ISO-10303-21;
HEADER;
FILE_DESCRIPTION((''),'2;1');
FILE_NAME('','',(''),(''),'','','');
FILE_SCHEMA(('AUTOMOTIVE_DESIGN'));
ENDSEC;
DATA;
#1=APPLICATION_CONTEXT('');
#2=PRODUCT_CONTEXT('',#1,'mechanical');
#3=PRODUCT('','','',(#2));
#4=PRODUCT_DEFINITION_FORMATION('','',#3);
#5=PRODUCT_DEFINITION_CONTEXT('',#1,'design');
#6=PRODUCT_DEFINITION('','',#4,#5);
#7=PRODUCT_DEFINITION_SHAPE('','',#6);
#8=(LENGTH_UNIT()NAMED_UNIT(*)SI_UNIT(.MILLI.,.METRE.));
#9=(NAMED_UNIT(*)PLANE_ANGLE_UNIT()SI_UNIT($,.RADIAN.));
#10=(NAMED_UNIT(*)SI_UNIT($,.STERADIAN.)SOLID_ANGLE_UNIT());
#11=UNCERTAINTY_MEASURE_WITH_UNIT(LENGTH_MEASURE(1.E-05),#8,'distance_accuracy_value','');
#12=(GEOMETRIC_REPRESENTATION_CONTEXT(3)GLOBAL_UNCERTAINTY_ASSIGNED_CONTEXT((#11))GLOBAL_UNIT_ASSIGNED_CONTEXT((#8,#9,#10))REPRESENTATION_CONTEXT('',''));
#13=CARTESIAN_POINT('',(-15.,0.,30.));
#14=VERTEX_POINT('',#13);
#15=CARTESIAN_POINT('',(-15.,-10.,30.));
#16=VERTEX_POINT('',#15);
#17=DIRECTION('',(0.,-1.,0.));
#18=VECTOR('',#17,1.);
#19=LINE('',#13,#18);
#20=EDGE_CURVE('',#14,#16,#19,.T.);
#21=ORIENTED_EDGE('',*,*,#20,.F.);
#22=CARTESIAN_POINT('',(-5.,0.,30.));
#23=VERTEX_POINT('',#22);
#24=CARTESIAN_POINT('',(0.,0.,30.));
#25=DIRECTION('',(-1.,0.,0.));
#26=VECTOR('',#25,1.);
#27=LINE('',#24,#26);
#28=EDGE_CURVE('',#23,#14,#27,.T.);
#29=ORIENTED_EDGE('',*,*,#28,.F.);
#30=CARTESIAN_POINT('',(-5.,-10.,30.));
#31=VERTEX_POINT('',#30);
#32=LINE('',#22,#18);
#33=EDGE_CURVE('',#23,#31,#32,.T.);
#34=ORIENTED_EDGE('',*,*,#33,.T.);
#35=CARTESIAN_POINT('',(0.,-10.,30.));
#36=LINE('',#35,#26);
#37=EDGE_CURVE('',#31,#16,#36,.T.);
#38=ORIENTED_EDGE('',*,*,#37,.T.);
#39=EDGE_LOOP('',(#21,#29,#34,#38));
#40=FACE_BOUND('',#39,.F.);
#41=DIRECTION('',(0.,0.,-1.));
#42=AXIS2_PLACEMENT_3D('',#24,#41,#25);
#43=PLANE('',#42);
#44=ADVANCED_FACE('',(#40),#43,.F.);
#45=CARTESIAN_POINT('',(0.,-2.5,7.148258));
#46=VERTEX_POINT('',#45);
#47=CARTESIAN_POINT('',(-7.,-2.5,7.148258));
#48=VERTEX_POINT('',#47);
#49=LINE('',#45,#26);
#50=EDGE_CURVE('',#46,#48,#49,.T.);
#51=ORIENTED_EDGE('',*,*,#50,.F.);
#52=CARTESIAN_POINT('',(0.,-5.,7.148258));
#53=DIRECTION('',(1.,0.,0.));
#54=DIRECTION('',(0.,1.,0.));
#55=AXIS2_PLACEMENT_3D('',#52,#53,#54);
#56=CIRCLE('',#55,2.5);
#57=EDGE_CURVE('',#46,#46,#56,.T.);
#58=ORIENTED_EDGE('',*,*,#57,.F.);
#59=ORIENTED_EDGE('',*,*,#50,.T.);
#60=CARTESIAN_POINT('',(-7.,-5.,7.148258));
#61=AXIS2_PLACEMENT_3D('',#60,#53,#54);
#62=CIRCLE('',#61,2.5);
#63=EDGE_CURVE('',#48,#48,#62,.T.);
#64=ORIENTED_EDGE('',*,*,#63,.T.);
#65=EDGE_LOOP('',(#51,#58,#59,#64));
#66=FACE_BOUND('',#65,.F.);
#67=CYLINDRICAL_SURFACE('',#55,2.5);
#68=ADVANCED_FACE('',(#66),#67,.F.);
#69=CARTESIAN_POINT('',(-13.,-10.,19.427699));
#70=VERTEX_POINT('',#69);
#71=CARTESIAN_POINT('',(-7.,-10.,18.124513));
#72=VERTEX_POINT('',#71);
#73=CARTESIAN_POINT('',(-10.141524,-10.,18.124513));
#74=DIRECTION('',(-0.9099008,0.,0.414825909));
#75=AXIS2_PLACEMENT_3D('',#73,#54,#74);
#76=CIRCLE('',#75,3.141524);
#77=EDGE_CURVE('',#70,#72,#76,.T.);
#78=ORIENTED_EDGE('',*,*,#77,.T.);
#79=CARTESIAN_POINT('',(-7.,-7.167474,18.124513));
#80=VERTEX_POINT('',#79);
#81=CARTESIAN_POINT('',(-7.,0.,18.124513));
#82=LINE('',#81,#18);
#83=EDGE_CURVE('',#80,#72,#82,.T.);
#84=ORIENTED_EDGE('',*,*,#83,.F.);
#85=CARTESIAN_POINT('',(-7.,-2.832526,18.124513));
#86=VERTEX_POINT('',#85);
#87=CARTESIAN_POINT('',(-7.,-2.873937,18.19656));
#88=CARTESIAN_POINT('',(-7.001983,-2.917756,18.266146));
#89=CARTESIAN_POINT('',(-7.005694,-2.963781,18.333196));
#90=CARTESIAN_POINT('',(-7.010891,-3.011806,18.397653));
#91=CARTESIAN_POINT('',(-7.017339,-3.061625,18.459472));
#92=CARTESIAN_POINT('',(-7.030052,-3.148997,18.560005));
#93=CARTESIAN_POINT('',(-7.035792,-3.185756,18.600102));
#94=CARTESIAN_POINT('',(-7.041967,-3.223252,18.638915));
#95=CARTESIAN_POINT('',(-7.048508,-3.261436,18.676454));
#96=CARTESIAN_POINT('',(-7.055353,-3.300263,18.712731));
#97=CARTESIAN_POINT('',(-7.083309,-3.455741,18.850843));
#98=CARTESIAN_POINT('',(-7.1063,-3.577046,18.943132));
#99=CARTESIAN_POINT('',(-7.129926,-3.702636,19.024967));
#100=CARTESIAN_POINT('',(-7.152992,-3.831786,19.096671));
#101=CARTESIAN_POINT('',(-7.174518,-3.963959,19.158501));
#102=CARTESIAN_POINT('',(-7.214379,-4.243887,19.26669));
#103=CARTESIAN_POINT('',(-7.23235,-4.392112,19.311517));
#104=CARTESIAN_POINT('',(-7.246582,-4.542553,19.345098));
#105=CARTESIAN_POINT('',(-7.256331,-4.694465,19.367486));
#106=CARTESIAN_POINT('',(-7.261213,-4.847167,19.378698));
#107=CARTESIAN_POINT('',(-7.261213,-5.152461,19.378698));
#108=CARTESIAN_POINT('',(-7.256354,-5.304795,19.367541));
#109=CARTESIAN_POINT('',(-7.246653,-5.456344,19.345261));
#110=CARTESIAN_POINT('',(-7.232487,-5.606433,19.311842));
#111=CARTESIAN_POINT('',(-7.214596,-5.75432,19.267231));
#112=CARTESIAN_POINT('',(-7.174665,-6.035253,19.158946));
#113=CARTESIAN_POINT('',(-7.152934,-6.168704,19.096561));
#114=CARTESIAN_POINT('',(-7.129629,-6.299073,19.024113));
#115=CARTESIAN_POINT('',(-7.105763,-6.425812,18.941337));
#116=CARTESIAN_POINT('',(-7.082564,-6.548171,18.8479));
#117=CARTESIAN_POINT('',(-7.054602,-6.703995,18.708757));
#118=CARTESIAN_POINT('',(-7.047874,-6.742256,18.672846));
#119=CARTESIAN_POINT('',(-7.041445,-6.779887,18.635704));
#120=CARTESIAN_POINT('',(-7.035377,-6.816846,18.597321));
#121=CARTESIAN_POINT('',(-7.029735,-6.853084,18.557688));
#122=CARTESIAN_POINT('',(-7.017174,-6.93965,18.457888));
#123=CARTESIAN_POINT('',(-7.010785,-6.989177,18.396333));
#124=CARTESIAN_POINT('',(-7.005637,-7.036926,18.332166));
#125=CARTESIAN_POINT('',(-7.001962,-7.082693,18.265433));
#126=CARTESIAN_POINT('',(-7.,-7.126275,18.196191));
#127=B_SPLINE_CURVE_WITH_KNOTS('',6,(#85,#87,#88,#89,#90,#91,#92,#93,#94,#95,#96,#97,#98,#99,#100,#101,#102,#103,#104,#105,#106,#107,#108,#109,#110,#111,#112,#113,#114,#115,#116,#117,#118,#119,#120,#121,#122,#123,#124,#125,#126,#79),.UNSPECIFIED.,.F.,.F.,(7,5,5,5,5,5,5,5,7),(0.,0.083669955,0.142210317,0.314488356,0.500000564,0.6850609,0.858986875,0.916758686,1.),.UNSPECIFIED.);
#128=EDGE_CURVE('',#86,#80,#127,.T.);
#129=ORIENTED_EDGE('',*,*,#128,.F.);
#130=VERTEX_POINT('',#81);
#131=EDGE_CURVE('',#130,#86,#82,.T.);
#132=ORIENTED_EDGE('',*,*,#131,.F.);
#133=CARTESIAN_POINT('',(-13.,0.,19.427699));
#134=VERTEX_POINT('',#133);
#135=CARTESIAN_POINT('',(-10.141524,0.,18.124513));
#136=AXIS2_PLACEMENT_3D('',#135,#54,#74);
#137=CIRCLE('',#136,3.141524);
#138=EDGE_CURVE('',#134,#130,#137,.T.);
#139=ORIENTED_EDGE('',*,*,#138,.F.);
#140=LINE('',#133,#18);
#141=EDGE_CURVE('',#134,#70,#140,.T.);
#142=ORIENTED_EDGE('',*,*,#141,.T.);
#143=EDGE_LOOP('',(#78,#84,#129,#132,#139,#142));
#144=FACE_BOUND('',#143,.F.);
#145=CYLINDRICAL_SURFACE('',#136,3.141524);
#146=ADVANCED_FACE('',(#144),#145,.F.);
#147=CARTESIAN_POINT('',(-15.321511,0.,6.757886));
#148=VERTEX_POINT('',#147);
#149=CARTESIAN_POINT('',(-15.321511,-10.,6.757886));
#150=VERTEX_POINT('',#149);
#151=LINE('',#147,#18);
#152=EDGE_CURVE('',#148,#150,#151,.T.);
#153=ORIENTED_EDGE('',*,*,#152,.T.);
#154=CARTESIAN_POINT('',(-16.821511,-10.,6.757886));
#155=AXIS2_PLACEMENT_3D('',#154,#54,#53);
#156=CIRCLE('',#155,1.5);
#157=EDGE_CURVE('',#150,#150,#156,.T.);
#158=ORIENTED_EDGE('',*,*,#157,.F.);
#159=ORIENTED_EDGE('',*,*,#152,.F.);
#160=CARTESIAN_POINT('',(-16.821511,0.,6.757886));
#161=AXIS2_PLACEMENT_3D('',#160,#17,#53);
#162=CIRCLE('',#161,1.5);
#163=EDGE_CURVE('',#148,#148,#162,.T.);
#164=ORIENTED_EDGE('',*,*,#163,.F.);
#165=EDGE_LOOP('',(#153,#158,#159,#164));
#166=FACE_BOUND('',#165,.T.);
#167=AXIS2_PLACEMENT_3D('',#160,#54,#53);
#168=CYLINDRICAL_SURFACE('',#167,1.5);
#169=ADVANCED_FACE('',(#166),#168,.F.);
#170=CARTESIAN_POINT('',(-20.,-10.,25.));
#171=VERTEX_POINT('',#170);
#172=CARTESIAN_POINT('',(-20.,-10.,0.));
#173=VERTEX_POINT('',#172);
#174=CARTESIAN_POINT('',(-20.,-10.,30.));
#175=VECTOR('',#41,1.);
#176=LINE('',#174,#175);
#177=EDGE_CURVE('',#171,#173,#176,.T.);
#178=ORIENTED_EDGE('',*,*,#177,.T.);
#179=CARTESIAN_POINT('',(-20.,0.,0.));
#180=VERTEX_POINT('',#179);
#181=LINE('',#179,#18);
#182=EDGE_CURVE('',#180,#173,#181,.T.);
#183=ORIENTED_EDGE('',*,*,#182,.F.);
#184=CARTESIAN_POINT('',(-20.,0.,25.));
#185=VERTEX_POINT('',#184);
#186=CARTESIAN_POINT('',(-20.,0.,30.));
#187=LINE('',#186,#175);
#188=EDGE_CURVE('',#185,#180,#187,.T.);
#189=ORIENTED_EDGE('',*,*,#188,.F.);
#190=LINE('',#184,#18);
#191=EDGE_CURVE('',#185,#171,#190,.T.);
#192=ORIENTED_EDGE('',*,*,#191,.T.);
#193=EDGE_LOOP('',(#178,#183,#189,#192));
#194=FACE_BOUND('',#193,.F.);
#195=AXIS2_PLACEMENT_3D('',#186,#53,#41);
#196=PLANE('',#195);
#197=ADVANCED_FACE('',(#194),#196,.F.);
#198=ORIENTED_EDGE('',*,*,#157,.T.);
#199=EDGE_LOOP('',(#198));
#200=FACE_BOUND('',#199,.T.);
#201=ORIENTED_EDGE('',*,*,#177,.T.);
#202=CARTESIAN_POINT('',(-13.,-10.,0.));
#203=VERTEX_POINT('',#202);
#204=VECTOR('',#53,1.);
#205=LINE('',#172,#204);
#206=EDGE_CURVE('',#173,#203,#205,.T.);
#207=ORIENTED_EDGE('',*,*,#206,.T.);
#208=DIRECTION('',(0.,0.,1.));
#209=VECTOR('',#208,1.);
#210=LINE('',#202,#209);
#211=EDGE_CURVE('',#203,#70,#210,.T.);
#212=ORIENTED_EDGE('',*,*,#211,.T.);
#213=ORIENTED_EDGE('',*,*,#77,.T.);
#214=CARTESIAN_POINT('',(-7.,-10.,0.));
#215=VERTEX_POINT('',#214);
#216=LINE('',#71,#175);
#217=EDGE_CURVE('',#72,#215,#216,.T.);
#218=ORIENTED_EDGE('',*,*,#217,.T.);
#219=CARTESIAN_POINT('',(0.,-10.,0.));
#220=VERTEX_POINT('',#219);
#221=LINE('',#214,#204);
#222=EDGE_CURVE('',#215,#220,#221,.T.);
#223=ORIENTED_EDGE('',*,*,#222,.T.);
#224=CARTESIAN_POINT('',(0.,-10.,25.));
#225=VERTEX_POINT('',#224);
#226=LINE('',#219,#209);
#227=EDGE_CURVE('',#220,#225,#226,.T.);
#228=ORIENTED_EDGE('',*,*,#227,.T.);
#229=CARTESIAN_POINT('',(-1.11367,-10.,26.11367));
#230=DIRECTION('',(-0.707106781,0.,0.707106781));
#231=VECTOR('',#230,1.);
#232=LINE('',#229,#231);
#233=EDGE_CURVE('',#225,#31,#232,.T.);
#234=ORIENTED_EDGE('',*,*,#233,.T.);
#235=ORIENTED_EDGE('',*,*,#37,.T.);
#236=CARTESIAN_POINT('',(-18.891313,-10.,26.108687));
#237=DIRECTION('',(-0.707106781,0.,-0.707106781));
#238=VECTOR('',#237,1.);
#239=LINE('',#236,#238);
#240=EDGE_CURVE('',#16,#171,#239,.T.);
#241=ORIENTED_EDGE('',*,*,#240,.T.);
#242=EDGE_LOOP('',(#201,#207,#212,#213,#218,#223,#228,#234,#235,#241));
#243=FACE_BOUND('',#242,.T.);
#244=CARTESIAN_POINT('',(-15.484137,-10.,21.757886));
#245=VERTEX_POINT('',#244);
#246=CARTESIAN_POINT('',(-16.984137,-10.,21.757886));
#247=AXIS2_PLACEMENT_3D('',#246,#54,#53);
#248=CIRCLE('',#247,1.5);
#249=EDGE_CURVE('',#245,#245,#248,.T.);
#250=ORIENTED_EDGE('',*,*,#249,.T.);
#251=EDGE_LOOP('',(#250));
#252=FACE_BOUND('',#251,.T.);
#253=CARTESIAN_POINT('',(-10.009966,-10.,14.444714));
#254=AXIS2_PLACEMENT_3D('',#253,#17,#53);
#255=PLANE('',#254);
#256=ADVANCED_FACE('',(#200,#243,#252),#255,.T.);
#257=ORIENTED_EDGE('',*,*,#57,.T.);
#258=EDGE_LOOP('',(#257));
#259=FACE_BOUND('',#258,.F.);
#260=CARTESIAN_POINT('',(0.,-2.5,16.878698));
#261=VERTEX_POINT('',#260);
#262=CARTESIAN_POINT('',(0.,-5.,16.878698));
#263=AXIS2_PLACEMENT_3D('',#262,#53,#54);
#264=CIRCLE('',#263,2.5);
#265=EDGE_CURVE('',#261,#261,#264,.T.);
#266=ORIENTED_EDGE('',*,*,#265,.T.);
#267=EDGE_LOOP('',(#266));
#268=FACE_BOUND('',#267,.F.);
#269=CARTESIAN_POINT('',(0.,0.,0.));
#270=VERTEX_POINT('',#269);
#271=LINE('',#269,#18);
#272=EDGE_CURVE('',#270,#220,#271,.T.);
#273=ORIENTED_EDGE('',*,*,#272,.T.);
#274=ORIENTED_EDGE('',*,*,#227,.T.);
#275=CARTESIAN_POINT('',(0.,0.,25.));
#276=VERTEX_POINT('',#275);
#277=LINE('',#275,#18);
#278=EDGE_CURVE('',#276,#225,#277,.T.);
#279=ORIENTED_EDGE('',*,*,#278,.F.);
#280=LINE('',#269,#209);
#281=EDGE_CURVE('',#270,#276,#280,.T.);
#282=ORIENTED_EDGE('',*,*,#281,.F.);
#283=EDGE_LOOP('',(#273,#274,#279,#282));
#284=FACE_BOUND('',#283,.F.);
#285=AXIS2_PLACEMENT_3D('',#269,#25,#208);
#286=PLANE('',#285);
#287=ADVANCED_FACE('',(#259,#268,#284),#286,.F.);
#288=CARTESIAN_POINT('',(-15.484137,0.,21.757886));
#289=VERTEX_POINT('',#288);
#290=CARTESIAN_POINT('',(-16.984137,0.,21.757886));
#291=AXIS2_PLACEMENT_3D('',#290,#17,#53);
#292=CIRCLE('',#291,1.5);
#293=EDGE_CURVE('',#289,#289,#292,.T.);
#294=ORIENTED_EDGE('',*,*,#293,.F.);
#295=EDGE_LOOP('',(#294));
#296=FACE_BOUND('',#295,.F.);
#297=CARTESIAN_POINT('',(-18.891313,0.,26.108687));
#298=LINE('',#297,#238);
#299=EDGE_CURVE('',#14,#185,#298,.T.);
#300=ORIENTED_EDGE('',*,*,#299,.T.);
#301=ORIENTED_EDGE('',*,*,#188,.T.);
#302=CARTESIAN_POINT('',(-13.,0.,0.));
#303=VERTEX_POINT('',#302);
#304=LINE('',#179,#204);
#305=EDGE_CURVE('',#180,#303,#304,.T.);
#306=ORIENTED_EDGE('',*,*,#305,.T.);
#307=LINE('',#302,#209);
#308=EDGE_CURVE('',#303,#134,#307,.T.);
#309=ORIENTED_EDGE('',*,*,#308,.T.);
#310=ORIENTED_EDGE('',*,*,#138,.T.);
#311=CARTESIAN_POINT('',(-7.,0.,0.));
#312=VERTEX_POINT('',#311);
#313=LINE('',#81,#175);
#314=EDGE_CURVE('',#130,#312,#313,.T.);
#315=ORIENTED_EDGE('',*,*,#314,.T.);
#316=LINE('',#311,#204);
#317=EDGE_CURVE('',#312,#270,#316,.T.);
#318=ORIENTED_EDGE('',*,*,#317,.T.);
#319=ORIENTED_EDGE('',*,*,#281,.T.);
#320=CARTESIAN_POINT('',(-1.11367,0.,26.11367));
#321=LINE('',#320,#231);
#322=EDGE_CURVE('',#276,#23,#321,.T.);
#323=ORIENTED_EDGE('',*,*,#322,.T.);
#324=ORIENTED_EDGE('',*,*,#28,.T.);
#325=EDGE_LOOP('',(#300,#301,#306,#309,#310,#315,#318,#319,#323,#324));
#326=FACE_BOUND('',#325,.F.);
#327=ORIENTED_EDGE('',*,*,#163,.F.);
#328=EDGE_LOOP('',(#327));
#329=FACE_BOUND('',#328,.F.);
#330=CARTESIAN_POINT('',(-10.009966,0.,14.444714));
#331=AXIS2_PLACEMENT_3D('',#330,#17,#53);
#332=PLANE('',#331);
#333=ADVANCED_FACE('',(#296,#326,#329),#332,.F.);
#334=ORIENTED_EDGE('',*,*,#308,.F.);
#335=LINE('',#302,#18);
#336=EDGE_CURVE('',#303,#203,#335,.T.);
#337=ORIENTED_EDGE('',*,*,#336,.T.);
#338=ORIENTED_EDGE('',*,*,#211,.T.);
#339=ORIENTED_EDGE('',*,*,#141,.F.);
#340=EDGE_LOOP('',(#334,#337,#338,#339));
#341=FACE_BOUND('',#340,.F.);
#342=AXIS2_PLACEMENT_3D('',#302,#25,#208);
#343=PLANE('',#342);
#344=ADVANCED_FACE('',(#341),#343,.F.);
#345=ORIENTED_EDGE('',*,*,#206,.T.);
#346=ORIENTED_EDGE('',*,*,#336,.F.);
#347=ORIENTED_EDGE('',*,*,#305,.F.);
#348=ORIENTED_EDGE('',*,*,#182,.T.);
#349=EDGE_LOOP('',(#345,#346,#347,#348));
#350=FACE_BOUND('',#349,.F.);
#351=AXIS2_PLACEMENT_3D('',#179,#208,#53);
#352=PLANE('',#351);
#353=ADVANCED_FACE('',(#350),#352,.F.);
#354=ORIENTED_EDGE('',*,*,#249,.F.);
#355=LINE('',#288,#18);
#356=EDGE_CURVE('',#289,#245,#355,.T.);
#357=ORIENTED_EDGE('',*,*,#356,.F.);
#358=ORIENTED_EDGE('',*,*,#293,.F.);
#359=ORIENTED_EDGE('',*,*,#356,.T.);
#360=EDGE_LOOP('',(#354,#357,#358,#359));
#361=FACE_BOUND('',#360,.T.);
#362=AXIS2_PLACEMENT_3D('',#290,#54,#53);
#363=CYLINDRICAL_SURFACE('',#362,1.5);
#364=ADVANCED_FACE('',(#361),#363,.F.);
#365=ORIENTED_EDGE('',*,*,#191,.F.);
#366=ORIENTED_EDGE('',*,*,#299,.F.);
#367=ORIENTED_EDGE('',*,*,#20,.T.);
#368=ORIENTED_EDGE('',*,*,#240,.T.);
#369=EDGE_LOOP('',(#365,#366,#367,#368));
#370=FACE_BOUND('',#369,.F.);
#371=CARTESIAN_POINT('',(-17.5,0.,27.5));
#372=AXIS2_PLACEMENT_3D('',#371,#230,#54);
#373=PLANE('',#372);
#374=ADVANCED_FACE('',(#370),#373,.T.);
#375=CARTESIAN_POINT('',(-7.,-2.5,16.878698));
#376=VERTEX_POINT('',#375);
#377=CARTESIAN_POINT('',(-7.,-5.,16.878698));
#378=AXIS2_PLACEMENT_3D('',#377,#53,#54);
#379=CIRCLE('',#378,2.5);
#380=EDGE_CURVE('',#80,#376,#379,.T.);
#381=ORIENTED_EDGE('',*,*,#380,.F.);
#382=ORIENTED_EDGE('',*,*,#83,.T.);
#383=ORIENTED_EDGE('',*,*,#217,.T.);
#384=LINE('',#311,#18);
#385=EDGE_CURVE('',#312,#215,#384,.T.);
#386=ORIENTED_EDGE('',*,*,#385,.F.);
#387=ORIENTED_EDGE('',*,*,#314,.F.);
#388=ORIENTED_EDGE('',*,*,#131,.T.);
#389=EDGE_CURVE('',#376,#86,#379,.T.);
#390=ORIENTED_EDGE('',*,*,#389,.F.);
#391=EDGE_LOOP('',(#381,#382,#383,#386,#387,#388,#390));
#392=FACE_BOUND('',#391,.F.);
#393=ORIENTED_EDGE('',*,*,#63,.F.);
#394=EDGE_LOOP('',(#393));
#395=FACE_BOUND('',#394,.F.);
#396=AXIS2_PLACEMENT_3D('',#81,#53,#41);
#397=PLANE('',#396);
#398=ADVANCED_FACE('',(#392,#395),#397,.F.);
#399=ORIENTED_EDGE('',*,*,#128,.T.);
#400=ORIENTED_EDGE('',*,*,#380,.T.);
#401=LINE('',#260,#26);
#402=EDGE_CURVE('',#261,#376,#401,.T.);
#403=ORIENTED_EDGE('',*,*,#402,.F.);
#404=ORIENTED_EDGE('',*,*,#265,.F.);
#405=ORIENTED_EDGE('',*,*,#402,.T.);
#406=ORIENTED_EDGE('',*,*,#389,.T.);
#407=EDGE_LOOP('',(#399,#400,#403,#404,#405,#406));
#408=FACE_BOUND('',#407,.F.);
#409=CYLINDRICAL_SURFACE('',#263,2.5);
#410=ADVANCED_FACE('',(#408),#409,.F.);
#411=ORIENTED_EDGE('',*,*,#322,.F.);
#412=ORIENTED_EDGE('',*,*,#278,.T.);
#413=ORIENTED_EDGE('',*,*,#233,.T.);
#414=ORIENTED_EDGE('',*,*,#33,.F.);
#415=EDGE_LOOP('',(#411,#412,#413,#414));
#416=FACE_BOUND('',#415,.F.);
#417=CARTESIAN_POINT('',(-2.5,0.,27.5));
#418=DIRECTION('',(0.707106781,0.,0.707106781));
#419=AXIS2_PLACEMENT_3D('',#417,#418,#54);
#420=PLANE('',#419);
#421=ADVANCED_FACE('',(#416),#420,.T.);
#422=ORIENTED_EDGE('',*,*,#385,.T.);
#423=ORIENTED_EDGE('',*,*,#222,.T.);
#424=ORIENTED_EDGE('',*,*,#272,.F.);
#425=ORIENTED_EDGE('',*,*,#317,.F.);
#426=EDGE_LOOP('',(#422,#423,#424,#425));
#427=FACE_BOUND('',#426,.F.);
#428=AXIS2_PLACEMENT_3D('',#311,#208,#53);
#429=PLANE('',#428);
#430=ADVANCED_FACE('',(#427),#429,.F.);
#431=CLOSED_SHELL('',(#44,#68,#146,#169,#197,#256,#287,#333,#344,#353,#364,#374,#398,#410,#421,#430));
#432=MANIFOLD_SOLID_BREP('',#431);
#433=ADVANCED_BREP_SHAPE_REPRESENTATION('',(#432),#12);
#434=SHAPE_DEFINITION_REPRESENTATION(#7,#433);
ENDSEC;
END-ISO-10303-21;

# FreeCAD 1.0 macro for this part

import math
import FreeCAD as App
import Part
import Sketcher
from FreeCAD import Vector
Q = App.Units.Quantity


def edges_at(feature, points):
    """Names of the edges that pass closest to the given points."""
    edges = feature.Shape.Edges
    near = lambda p: min(range(len(edges)), key=lambda i: edges[i].distToShape(Part.Vertex(*p))[0])
    return sorted({f"Edge{near(p) + 1}" for p in points})

doc = App.newDocument("Part")
body = doc.addObject("PartDesign::Body", "Body")

# Sketch on XZ plane
sketch1 = doc.addObject("Sketcher::SketchObject", "Sketch")
body.addObject(sketch1)
sketch1.AttachmentSupport = (doc.XZ_Plane, [""])
sketch1.MapMode = "FlatFace"
sketch1.addGeometry(Part.LineSegment(Vector(-7, 0, 0), Vector(0, 0, 0)), False)
sketch1.addGeometry(Part.LineSegment(Vector(0, 0, 0), Vector(0, 30, 0)), False)
sketch1.addGeometry(Part.LineSegment(Vector(0, 30, 0), Vector(-20, 30, 0)), False)
sketch1.addGeometry(Part.LineSegment(Vector(-20, 30, 0), Vector(-20, 0, 0)), False)
sketch1.addGeometry(Part.LineSegment(Vector(-20, 0, 0), Vector(-13, 0, 0)), False)
sketch1.addGeometry(Part.LineSegment(Vector(-13, 0, 0), Vector(-13, 19.4, 0)), False)
sketch1.addGeometry(Part.ArcOfCircle(Part.Circle(Vector(-10.1, 18.1, 0), Vector(0, 0, 1), 3.1), math.radians(0), math.radians(155)), False)
sketch1.addGeometry(Part.LineSegment(Vector(-7, 18.1, 0), Vector(-7, 0, 0)), False)
sketch1.addConstraint(Sketcher.Constraint("Coincident", 0, 2, 1, 1))
sketch1.addConstraint(Sketcher.Constraint("Coincident", 1, 2, 2, 1))
sketch1.addConstraint(Sketcher.Constraint("Coincident", 2, 2, 3, 1))
sketch1.addConstraint(Sketcher.Constraint("Coincident", 3, 2, 4, 1))
sketch1.addConstraint(Sketcher.Constraint("Coincident", 4, 2, 5, 1))
sketch1.addConstraint(Sketcher.Constraint("Coincident", 5, 2, 6, 2))
sketch1.addConstraint(Sketcher.Constraint("Tangent", 6, 1, 7, 1))
sketch1.addConstraint(Sketcher.Constraint("Coincident", 7, 2, 0, 1))
sketch1.addConstraint(Sketcher.Constraint("Horizontal", 0))
sketch1.addConstraint(Sketcher.Constraint("Vertical", 1))
sketch1.addConstraint(Sketcher.Constraint("Horizontal", 2))
sketch1.addConstraint(Sketcher.Constraint("Vertical", 3))
sketch1.addConstraint(Sketcher.Constraint("Horizontal", 4))
sketch1.addConstraint(Sketcher.Constraint("Vertical", 5))
sketch1.addConstraint(Sketcher.Constraint("Vertical", 7))
sketch1.addConstraint(Sketcher.Constraint("Coincident", 0, 2, -1, 1))
sketch1.addConstraint(Sketcher.Constraint("PointOnObject", 3, 2, -1))
sketch1.addConstraint(Sketcher.Constraint("Equal", 0, 4))
sketch1.addConstraint(Sketcher.Constraint("DistanceX", 0, 1, 0, 2, Q("7 mm")))
sketch1.addConstraint(Sketcher.Constraint("DistanceX", 2, 2, 2, 1, Q("20 mm")))
sketch1.addConstraint(Sketcher.Constraint("DistanceY", 1, 1, 1, 2, Q("30 mm")))
sketch1.addConstraint(Sketcher.Constraint("DistanceY", 5, 1, 5, 2, Q("19.427699 mm")))
sketch1.addConstraint(Sketcher.Constraint("Radius", 6, Q("3.141524 mm")))
pad1 = doc.addObject("PartDesign::Pad", "Pad")
body.addObject(pad1)
pad1.Profile = sketch1
pad1.Length = 10
doc.recompute()

chamfer = doc.addObject("PartDesign::Chamfer", "Chamfer")
body.addObject(chamfer)
chamfer.Base = (pad1, edges_at(pad1, [(0, -5, 30), (-20, -5, 30)]))
chamfer.Size = 5

# Sketch on YZ plane
sketch2 = doc.addObject("Sketcher::SketchObject", "Sketch001")
body.addObject(sketch2)
sketch2.AttachmentSupport = (doc.YZ_Plane, [""])
sketch2.MapMode = "FlatFace"
sketch2.addGeometry(Part.Circle(Vector(-5, 16.9, 0), Vector(0, 0, 1), 2.5), False)
sketch2.addGeometry(Part.Circle(Vector(-5, 7.1, 0), Vector(0, 0, 1), 2.5), False)
sketch2.addConstraint(Sketcher.Constraint("Equal", 0, 1))
sketch2.addConstraint(Sketcher.Constraint("Vertical", 0, 3, 1, 3))
sketch2.addConstraint(Sketcher.Constraint("Diameter", 0, Q("5 mm")))
sketch2.addConstraint(Sketcher.Constraint("DistanceX", 0, 3, -1, 1, Q("5 mm")))
sketch2.addConstraint(Sketcher.Constraint("DistanceY", -1, 1, 0, 3, Q("16.878698 mm")))
sketch2.addConstraint(Sketcher.Constraint("DistanceY", -1, 1, 1, 3, Q("7.148258 mm")))
pocket1 = doc.addObject("PartDesign::Pocket", "Pocket")
body.addObject(pocket1)
pocket1.Profile = sketch2
pocket1.Length = 10

# Sketch on XZ plane
sketch3 = doc.addObject("Sketcher::SketchObject", "Sketch002")
body.addObject(sketch3)
sketch3.AttachmentSupport = (doc.XZ_Plane, [""])
sketch3.MapMode = "FlatFace"
sketch3.addGeometry(Part.Circle(Vector(-17, 21.8, 0), Vector(0, 0, 1), 1.5), False)
sketch3.addGeometry(Part.Circle(Vector(-16.8, 6.8, 0), Vector(0, 0, 1), 1.5), False)
sketch3.addConstraint(Sketcher.Constraint("Equal", 0, 1))
sketch3.addConstraint(Sketcher.Constraint("Diameter", 0, Q("3 mm")))
sketch3.addConstraint(Sketcher.Constraint("DistanceY", 1, 3, 0, 3, Q("15 mm")))
sketch3.addConstraint(Sketcher.Constraint("DistanceX", 1, 3, -1, 1, Q("16.821511 mm")))
sketch3.addConstraint(Sketcher.Constraint("DistanceX", 0, 3, -1, 1, Q("16.984137 mm")))
sketch3.addConstraint(Sketcher.Constraint("DistanceY", -1, 1, 0, 3, Q("21.757886 mm")))
pocket2 = doc.addObject("PartDesign::Pocket", "Pocket001")
body.addObject(pocket2)
pocket2.Profile = sketch3
pocket2.Length = 12
pocket2.Reversed = True

doc.recompute()
